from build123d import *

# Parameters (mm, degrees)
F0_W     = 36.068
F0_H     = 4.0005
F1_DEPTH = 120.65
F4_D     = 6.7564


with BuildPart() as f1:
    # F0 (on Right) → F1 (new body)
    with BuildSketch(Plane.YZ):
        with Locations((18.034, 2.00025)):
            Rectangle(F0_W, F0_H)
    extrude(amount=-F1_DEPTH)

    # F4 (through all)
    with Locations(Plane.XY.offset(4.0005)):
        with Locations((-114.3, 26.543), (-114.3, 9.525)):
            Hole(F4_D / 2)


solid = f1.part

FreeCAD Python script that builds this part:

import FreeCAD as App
import Part
import Sketcher

V = App.Vector
Q = App.Units.Quantity


def add_polygon(sketch, points):
    """Adds a closed chain of lines whose ends are joined by coincident constraints."""
    first, n = sketch.GeometryCount, len(points)
    for a, b in zip(points, points[1:] + points[:1]):
        sketch.addGeometry(Part.LineSegment(App.Vector(*a, 0), App.Vector(*b, 0)), False)
    for i in range(n):
        sketch.addConstraint(Sketcher.Constraint("Coincident", first + i, 2, first + (i + 1) % n, 1))

doc = App.newDocument("Part")
body = doc.addObject("PartDesign::Body", "Body")

# Sketch on YZ plane
sketch1 = body.newObject("Sketcher::SketchObject", "Sketch")
sketch1.AttachmentSupport = (doc.getObject("YZ_Plane"), [""])
sketch1.MapMode = "FlatFace"
add_polygon(sketch1, [(0, 4), (0, 0), (36.1, 0), (36.1, 4)])  # lines 0-3
sketch1.addConstraint(Sketcher.Constraint("Vertical", 0))
sketch1.addConstraint(Sketcher.Constraint("Horizontal", 1))
sketch1.addConstraint(Sketcher.Constraint("Vertical", 2))
sketch1.addConstraint(Sketcher.Constraint("Horizontal", 3))
sketch1.addConstraint(Sketcher.Constraint("Coincident", 0, 2, -1, 1))
sketch1.addConstraint(Sketcher.Constraint("DistanceX", 1, 1, 1, 2, Q("1.42 in")))
sketch1.addConstraint(Sketcher.Constraint("DistanceY", 0, 2, 0, 1, Q("0.1575 in")))
pad1 = body.newObject("PartDesign::Pad", "Pad")
pad1.Profile = sketch1
pad1.Length = Q("4.75 in")
pad1.Reversed = True

# Sketch on XY plane
sketch2 = body.newObject("Sketcher::SketchObject", "Sketch001")
sketch2.AttachmentSupport = (doc.getObject("XY_Plane"), [""])
sketch2.MapMode = "FlatFace"
sketch2.AttachmentOffset = App.Placement(V(0, 0, 0.1575 * 25.4), App.Rotation())
sketch2.addGeometry(Part.Circle(V(-114.3, 26.5, 0), V(0, 0, 1), 3.4), False)
sketch2.addGeometry(Part.Circle(V(-114.3, 9.5, 0), V(0, 0, 1), 3.4), False)
sketch2.addConstraint(Sketcher.Constraint("Equal", 0, 1))
sketch2.addConstraint(Sketcher.Constraint("Vertical", 0, 3, 1, 3))
sketch2.addConstraint(Sketcher.Constraint("Diameter", 0, Q("0.266 in")))
sketch2.addConstraint(Sketcher.Constraint("DistanceX", 0, 3, -1, 1, Q("4.5 in")))
sketch2.addConstraint(Sketcher.Constraint("DistanceY", 1, 3, 0, 3, Q("0.67 in")))
sketch2.addConstraint(Sketcher.Constraint("DistanceY", -1, 1, 0, 3, Q("1.045 in")))
doc.recompute()
hole = body.newObject("PartDesign::Hole", "Hole")
hole.Profile = sketch2
hole.ThreadType = "None"
hole.Diameter = Q("0.266 in")
hole.DepthType = "ThroughAll"

doc.recompute()
